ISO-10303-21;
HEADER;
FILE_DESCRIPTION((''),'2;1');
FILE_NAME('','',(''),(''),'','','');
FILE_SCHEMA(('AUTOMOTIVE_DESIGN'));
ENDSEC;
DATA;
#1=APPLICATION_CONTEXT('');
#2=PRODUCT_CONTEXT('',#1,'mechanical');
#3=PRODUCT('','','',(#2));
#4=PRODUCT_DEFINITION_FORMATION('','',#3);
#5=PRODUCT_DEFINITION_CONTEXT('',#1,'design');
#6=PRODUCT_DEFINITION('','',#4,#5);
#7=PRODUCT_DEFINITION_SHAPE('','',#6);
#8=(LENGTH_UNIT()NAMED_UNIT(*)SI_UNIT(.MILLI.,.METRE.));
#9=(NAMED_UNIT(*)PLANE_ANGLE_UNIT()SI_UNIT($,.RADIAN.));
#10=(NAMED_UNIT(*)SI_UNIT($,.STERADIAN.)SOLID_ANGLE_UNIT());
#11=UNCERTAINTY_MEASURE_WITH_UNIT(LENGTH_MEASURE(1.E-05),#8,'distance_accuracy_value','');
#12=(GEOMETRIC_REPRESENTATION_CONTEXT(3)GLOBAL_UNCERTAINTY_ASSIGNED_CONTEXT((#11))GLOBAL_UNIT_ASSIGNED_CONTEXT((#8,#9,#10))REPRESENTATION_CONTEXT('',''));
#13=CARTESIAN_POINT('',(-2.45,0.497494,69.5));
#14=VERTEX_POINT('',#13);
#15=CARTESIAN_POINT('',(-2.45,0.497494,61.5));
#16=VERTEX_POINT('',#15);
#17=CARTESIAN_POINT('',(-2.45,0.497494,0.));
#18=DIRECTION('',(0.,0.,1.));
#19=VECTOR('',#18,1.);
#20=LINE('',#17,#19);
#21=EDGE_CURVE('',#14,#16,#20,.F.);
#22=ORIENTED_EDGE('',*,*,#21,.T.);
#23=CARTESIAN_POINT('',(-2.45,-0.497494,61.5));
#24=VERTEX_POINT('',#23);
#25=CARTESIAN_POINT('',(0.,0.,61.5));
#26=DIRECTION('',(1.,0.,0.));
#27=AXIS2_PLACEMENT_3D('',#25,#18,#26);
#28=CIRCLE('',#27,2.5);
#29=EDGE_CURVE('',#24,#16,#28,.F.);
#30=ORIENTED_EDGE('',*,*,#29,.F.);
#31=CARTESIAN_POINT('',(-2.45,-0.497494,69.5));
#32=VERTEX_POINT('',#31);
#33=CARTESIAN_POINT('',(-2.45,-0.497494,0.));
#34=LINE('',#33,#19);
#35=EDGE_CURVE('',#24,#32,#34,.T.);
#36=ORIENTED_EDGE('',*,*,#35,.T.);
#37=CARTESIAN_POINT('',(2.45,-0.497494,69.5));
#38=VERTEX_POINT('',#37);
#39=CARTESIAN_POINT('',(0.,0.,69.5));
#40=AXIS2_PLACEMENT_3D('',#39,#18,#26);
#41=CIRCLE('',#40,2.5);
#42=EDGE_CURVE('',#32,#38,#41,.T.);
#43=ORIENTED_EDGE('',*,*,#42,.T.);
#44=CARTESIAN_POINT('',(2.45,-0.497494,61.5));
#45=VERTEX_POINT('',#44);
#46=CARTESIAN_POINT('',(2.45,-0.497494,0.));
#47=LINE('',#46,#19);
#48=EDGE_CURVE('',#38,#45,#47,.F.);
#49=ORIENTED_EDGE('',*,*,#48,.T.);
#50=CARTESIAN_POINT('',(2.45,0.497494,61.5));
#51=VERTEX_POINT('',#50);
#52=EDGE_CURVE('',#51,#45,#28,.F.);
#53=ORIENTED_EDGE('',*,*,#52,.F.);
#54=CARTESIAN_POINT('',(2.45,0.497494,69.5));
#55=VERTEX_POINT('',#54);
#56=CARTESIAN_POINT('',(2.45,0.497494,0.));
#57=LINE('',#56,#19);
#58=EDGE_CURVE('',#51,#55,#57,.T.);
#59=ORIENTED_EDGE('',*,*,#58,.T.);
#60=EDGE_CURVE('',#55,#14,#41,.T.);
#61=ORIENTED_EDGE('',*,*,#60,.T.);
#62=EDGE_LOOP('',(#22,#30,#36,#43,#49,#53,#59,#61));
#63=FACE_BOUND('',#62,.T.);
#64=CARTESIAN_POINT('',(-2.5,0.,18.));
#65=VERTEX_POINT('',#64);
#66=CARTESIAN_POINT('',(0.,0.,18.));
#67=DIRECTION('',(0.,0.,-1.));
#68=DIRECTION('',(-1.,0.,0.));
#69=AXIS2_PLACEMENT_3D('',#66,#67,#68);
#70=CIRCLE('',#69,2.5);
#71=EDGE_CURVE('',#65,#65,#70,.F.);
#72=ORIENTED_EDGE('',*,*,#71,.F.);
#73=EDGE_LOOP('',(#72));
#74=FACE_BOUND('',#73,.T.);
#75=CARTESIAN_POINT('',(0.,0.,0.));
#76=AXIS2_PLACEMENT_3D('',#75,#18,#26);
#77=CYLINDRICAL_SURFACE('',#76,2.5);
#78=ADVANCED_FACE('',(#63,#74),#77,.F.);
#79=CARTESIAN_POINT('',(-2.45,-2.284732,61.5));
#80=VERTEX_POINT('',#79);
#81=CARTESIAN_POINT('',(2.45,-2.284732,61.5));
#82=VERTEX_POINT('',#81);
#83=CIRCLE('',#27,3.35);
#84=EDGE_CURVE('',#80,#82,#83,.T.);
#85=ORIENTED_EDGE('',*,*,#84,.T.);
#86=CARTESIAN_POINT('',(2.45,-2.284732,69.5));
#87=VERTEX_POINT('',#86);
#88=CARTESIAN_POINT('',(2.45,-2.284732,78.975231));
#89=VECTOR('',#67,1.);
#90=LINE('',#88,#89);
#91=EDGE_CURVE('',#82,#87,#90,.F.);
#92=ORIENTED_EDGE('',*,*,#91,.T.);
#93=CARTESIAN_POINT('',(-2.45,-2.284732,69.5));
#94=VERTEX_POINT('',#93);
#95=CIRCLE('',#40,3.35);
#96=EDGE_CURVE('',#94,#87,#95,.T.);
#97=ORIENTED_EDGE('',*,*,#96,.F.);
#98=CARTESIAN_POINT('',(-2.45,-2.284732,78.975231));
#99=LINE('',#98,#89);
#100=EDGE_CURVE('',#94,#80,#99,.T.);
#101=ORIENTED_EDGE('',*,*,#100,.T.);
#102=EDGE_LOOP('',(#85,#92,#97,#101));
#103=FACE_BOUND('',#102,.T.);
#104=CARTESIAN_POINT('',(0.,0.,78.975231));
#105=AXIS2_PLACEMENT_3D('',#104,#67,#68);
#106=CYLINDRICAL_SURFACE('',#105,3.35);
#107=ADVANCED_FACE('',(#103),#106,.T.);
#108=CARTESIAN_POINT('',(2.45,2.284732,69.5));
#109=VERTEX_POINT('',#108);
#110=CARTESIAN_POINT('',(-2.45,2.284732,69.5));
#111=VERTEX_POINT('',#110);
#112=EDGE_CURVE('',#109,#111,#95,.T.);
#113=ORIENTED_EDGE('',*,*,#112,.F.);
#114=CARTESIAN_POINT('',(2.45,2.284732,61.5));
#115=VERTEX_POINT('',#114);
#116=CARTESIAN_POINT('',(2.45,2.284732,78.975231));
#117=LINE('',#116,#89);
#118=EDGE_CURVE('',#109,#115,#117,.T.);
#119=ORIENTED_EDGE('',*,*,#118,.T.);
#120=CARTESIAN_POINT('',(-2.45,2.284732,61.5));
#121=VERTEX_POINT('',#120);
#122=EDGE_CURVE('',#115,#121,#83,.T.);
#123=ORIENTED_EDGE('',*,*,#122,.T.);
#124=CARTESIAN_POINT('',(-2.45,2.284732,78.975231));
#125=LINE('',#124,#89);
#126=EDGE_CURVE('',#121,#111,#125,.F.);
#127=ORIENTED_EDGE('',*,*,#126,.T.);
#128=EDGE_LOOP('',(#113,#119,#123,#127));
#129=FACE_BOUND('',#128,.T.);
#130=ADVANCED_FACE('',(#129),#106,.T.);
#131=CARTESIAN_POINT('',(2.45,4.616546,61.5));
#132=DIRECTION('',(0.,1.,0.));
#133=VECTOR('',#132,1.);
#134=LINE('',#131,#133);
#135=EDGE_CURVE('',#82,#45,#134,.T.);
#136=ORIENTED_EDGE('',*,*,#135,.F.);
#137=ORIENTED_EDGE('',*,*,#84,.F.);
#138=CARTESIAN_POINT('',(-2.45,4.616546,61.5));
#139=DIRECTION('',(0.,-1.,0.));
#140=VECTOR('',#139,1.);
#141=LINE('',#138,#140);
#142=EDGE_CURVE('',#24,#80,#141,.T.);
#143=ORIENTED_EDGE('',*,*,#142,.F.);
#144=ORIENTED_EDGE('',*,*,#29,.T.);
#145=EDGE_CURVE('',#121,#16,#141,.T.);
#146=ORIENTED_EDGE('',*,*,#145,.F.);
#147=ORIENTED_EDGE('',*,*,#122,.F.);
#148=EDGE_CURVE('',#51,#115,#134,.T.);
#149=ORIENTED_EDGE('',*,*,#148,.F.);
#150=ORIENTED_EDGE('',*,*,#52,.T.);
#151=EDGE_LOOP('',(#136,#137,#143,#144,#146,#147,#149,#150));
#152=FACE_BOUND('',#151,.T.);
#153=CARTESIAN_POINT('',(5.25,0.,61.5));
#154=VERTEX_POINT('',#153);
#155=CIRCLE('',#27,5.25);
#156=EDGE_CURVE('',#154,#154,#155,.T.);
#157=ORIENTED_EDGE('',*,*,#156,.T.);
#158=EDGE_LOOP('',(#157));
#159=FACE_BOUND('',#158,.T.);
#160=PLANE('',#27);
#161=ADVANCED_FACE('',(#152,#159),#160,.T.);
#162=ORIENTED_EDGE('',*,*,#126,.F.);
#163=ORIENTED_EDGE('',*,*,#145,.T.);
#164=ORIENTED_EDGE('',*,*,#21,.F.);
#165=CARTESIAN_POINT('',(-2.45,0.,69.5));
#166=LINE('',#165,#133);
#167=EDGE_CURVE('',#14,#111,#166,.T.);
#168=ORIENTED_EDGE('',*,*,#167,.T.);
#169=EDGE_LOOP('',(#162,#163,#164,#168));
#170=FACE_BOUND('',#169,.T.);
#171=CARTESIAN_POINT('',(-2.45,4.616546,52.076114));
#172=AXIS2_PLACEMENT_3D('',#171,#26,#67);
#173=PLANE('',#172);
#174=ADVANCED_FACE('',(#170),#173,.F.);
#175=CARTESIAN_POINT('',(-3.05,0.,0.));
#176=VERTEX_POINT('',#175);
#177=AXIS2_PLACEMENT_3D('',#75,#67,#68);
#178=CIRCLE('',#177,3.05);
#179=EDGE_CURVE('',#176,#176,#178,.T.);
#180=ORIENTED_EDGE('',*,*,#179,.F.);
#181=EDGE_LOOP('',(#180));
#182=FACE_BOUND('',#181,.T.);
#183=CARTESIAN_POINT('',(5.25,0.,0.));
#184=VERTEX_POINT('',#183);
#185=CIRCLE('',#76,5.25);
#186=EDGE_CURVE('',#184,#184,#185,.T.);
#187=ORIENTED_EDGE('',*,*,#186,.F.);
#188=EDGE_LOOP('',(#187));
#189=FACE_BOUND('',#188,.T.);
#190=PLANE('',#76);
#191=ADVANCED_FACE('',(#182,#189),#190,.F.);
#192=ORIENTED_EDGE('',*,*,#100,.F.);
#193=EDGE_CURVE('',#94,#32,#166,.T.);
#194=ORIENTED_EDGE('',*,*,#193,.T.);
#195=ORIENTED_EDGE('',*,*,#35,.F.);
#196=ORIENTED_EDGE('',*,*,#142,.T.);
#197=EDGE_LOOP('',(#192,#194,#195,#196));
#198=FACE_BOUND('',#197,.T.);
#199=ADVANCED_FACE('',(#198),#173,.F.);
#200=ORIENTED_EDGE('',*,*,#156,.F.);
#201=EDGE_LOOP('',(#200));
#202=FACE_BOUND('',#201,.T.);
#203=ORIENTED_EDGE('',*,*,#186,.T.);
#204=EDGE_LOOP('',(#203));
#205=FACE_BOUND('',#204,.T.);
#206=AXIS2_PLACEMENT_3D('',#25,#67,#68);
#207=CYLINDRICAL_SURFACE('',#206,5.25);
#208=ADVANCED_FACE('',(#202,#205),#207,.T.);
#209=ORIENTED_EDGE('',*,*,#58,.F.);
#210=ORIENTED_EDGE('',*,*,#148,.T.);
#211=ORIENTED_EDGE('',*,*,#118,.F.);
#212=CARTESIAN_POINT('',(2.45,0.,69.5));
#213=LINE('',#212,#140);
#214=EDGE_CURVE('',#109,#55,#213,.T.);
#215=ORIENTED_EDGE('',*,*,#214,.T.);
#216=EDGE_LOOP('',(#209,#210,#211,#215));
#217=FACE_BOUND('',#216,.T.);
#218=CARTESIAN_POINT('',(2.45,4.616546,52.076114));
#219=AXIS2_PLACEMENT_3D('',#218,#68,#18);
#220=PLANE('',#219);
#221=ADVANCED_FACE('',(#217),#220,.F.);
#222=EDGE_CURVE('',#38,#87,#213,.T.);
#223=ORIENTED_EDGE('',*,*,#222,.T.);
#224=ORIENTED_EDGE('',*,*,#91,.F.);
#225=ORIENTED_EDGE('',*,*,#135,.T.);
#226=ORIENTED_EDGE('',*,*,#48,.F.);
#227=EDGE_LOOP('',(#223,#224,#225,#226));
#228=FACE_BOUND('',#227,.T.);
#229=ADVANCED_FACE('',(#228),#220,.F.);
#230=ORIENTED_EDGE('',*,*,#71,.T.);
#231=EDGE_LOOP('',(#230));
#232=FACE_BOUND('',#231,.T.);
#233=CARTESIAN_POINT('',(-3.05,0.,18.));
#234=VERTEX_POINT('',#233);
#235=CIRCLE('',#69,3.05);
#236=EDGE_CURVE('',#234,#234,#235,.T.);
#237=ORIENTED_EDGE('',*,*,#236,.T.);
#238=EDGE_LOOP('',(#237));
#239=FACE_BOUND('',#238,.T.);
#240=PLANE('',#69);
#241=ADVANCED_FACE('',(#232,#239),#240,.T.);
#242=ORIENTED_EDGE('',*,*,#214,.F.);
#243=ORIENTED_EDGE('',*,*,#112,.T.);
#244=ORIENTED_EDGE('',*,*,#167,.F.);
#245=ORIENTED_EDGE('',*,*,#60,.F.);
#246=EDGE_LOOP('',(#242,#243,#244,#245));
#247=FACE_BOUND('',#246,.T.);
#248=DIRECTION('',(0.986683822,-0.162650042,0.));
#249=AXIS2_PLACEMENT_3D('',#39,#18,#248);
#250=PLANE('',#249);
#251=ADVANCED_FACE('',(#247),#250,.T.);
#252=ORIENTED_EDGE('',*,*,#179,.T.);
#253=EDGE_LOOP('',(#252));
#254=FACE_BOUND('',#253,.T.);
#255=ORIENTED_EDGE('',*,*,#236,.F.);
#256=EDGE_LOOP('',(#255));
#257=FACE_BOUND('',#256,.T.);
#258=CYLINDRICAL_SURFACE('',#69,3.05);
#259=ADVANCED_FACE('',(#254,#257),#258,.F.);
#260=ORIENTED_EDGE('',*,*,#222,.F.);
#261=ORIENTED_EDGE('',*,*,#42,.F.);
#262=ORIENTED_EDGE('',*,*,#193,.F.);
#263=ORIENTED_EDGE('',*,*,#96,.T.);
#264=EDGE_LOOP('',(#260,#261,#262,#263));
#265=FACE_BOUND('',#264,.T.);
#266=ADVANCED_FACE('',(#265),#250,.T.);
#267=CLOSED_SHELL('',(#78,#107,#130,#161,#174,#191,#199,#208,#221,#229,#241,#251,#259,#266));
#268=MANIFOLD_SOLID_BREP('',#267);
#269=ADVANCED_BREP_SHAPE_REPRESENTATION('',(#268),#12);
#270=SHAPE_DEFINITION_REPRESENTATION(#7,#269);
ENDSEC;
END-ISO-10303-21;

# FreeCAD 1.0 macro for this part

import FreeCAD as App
import Part
import Sketcher

V = App.Vector

doc = App.newDocument("Part")
body = doc.addObject("PartDesign::Body", "Body")

sketch1 = body.newObject("Sketcher::SketchObject", "Sketch")
sketch1.AttachmentSupport = (doc.getObject("XY_Plane"), [""])
sketch1.MapMode = "FlatFace"
sketch1.addGeometry(Part.Circle(V(0, 0, 0), V(0, 0, 1), 5), False)
sketch1.addConstraint([
    Sketcher.Constraint("Coincident", 0, 3, -1, 1),
    Sketcher.Constraint("Diameter", 0, 10.5),
])
pad1 = body.newObject("PartDesign::Pad", "Pad")
pad1.Profile = sketch1
pad1.Length = 61.5

sketch2 = body.newObject("Sketcher::SketchObject", "Sketch001")
sketch2.AttachmentSupport = (doc.getObject("XY_Plane"), [""])
sketch2.MapMode = "FlatFace"
sketch2.AttachmentOffset = App.Placement(V(0, 0, 61.5), App.Rotation())
sketch2.addGeometry(Part.Circle(V(0, 0, 0), V(0, 0, 1), 3.4), False)
sketch2.addConstraint([
    Sketcher.Constraint("Coincident", 0, 3, -1, 1),
    Sketcher.Constraint("Diameter", 0, 6.7),
])
pad2 = body.newObject("PartDesign::Pad", "Pad001")
pad2.Profile = sketch2
pad2.Length = 8

sketch3 = body.newObject("Sketcher::SketchObject", "Sketch002")
sketch3.AttachmentSupport = (doc.getObject("XY_Plane"), [""])
sketch3.MapMode = "FlatFace"
sketch3.AttachmentOffset = App.Placement(V(0, 0, 69.5), App.Rotation())
sketch3.addGeometry(Part.Circle(V(0, 0, 0), V(0, 0, 1), 2.5), False)
sketch3.addConstraint([
    Sketcher.Constraint("Coincident", 0, 3, -1, 1),
    Sketcher.Constraint("Diameter", 0, 5.0),
])
pocket1 = body.newObject("PartDesign::Pocket", "Pocket")
pocket1.Profile = sketch3
pocket1.Type = "ThroughAll"

sketch4 = body.newObject("Sketcher::SketchObject", "Sketch003")
sketch4.AttachmentSupport = (doc.getObject("XY_Plane"), [""])
sketch4.MapMode = "FlatFace"
sketch4.addGeometry(Part.Circle(V(0, 0, 0), V(0, 0, 1), 3), False)
sketch4.addConstraint([
    Sketcher.Constraint("Coincident", 0, 3, -1, 1),
    Sketcher.Constraint("Diameter", 0, 6.1),
])
pocket2 = body.newObject("PartDesign::Pocket", "Pocket001")
pocket2.Profile = sketch4
pocket2.Length = 18
pocket2.Reversed = True

sketch5 = body.newObject("Sketcher::SketchObject", "Sketch004")
sketch5.AttachmentSupport = (doc.getObject("XY_Plane"), [""])
sketch5.MapMode = "FlatFace"
sketch5.AttachmentOffset = App.Placement(V(0, 0, 69.5), App.Rotation())
sketch5.addGeometry([
    Part.LineSegment(V(-2.45, 4.617, 0), V(-5.821, 4.617, 0)),
    Part.LineSegment(V(-5.821, 4.617, 0), V(-5.821, -4.156, 0)),
    Part.LineSegment(V(-5.821, -4.156, 0), V(-2.45, -4.156, 0)),
    Part.LineSegment(V(-2.45, -4.156, 0), V(-2.45, 4.617, 0)),
    Part.LineSegment(V(2.45, 4.617, 0), V(2.45, -4.055, 0)),
    Part.LineSegment(V(2.45, -4.055, 0), V(2.5, -4.055, 0)),
    Part.LineSegment(V(2.5, -4.055, 0), V(5.893, -4.156, 0)),
    Part.LineSegment(V(5.893, -4.156, 0), V(5.893, 4.617, 0)),
    Part.LineSegment(V(5.893, 4.617, 0), V(2.45, 4.617, 0)),
], False)
sketch5.addConstraint([
    Sketcher.Constraint("Coincident", 0, 2, 1, 1),
    Sketcher.Constraint("Coincident", 1, 2, 2, 1),
    Sketcher.Constraint("Coincident", 2, 2, 3, 1),
    Sketcher.Constraint("Coincident", 3, 2, 0, 1),
    Sketcher.Constraint("Coincident", 4, 2, 5, 1),
    Sketcher.Constraint("Coincident", 5, 2, 6, 1),
    Sketcher.Constraint("Coincident", 6, 2, 7, 1),
    Sketcher.Constraint("Coincident", 7, 2, 8, 1),
    Sketcher.Constraint("Coincident", 8, 2, 4, 1),
    Sketcher.Constraint("Horizontal", 0),
    Sketcher.Constraint("Vertical", 1),
    Sketcher.Constraint("Horizontal", 2),
    Sketcher.Constraint("Vertical", 3),
    Sketcher.Constraint("Vertical", 4),
    Sketcher.Constraint("Horizontal", 5),
    Sketcher.Constraint("Vertical", 7),
    Sketcher.Constraint("Horizontal", 8),
    Sketcher.Constraint("Symmetric", 3, 2, 8, 2, -2),
    Sketcher.Constraint("Horizontal", 2, 2, 6, 2),
    Sketcher.Constraint("DistanceX", 5, 1, 5, 2, 0.05),
    Sketcher.Constraint("DistanceX", -1, 1, 5, 2, 2.5),
    Sketcher.Constraint("DistanceX", 0, 2, 0, 1, 3.371141),
    Sketcher.Constraint("DistanceX", 8, 2, 8, 1, 3.442919),
    Sketcher.Constraint("DistanceY", 1, 2, 1, 1, 8.772454),
    Sketcher.Constraint("DistanceY", 4, 2, 4, 1, 8.671965),
    Sketcher.Constraint("DistanceY", 4, 2, -1, 1, 4.055419),
])
pocket3 = body.newObject("PartDesign::Pocket", "Pocket002")
pocket3.Profile = sketch5
pocket3.Length = 8

doc.recompute()
